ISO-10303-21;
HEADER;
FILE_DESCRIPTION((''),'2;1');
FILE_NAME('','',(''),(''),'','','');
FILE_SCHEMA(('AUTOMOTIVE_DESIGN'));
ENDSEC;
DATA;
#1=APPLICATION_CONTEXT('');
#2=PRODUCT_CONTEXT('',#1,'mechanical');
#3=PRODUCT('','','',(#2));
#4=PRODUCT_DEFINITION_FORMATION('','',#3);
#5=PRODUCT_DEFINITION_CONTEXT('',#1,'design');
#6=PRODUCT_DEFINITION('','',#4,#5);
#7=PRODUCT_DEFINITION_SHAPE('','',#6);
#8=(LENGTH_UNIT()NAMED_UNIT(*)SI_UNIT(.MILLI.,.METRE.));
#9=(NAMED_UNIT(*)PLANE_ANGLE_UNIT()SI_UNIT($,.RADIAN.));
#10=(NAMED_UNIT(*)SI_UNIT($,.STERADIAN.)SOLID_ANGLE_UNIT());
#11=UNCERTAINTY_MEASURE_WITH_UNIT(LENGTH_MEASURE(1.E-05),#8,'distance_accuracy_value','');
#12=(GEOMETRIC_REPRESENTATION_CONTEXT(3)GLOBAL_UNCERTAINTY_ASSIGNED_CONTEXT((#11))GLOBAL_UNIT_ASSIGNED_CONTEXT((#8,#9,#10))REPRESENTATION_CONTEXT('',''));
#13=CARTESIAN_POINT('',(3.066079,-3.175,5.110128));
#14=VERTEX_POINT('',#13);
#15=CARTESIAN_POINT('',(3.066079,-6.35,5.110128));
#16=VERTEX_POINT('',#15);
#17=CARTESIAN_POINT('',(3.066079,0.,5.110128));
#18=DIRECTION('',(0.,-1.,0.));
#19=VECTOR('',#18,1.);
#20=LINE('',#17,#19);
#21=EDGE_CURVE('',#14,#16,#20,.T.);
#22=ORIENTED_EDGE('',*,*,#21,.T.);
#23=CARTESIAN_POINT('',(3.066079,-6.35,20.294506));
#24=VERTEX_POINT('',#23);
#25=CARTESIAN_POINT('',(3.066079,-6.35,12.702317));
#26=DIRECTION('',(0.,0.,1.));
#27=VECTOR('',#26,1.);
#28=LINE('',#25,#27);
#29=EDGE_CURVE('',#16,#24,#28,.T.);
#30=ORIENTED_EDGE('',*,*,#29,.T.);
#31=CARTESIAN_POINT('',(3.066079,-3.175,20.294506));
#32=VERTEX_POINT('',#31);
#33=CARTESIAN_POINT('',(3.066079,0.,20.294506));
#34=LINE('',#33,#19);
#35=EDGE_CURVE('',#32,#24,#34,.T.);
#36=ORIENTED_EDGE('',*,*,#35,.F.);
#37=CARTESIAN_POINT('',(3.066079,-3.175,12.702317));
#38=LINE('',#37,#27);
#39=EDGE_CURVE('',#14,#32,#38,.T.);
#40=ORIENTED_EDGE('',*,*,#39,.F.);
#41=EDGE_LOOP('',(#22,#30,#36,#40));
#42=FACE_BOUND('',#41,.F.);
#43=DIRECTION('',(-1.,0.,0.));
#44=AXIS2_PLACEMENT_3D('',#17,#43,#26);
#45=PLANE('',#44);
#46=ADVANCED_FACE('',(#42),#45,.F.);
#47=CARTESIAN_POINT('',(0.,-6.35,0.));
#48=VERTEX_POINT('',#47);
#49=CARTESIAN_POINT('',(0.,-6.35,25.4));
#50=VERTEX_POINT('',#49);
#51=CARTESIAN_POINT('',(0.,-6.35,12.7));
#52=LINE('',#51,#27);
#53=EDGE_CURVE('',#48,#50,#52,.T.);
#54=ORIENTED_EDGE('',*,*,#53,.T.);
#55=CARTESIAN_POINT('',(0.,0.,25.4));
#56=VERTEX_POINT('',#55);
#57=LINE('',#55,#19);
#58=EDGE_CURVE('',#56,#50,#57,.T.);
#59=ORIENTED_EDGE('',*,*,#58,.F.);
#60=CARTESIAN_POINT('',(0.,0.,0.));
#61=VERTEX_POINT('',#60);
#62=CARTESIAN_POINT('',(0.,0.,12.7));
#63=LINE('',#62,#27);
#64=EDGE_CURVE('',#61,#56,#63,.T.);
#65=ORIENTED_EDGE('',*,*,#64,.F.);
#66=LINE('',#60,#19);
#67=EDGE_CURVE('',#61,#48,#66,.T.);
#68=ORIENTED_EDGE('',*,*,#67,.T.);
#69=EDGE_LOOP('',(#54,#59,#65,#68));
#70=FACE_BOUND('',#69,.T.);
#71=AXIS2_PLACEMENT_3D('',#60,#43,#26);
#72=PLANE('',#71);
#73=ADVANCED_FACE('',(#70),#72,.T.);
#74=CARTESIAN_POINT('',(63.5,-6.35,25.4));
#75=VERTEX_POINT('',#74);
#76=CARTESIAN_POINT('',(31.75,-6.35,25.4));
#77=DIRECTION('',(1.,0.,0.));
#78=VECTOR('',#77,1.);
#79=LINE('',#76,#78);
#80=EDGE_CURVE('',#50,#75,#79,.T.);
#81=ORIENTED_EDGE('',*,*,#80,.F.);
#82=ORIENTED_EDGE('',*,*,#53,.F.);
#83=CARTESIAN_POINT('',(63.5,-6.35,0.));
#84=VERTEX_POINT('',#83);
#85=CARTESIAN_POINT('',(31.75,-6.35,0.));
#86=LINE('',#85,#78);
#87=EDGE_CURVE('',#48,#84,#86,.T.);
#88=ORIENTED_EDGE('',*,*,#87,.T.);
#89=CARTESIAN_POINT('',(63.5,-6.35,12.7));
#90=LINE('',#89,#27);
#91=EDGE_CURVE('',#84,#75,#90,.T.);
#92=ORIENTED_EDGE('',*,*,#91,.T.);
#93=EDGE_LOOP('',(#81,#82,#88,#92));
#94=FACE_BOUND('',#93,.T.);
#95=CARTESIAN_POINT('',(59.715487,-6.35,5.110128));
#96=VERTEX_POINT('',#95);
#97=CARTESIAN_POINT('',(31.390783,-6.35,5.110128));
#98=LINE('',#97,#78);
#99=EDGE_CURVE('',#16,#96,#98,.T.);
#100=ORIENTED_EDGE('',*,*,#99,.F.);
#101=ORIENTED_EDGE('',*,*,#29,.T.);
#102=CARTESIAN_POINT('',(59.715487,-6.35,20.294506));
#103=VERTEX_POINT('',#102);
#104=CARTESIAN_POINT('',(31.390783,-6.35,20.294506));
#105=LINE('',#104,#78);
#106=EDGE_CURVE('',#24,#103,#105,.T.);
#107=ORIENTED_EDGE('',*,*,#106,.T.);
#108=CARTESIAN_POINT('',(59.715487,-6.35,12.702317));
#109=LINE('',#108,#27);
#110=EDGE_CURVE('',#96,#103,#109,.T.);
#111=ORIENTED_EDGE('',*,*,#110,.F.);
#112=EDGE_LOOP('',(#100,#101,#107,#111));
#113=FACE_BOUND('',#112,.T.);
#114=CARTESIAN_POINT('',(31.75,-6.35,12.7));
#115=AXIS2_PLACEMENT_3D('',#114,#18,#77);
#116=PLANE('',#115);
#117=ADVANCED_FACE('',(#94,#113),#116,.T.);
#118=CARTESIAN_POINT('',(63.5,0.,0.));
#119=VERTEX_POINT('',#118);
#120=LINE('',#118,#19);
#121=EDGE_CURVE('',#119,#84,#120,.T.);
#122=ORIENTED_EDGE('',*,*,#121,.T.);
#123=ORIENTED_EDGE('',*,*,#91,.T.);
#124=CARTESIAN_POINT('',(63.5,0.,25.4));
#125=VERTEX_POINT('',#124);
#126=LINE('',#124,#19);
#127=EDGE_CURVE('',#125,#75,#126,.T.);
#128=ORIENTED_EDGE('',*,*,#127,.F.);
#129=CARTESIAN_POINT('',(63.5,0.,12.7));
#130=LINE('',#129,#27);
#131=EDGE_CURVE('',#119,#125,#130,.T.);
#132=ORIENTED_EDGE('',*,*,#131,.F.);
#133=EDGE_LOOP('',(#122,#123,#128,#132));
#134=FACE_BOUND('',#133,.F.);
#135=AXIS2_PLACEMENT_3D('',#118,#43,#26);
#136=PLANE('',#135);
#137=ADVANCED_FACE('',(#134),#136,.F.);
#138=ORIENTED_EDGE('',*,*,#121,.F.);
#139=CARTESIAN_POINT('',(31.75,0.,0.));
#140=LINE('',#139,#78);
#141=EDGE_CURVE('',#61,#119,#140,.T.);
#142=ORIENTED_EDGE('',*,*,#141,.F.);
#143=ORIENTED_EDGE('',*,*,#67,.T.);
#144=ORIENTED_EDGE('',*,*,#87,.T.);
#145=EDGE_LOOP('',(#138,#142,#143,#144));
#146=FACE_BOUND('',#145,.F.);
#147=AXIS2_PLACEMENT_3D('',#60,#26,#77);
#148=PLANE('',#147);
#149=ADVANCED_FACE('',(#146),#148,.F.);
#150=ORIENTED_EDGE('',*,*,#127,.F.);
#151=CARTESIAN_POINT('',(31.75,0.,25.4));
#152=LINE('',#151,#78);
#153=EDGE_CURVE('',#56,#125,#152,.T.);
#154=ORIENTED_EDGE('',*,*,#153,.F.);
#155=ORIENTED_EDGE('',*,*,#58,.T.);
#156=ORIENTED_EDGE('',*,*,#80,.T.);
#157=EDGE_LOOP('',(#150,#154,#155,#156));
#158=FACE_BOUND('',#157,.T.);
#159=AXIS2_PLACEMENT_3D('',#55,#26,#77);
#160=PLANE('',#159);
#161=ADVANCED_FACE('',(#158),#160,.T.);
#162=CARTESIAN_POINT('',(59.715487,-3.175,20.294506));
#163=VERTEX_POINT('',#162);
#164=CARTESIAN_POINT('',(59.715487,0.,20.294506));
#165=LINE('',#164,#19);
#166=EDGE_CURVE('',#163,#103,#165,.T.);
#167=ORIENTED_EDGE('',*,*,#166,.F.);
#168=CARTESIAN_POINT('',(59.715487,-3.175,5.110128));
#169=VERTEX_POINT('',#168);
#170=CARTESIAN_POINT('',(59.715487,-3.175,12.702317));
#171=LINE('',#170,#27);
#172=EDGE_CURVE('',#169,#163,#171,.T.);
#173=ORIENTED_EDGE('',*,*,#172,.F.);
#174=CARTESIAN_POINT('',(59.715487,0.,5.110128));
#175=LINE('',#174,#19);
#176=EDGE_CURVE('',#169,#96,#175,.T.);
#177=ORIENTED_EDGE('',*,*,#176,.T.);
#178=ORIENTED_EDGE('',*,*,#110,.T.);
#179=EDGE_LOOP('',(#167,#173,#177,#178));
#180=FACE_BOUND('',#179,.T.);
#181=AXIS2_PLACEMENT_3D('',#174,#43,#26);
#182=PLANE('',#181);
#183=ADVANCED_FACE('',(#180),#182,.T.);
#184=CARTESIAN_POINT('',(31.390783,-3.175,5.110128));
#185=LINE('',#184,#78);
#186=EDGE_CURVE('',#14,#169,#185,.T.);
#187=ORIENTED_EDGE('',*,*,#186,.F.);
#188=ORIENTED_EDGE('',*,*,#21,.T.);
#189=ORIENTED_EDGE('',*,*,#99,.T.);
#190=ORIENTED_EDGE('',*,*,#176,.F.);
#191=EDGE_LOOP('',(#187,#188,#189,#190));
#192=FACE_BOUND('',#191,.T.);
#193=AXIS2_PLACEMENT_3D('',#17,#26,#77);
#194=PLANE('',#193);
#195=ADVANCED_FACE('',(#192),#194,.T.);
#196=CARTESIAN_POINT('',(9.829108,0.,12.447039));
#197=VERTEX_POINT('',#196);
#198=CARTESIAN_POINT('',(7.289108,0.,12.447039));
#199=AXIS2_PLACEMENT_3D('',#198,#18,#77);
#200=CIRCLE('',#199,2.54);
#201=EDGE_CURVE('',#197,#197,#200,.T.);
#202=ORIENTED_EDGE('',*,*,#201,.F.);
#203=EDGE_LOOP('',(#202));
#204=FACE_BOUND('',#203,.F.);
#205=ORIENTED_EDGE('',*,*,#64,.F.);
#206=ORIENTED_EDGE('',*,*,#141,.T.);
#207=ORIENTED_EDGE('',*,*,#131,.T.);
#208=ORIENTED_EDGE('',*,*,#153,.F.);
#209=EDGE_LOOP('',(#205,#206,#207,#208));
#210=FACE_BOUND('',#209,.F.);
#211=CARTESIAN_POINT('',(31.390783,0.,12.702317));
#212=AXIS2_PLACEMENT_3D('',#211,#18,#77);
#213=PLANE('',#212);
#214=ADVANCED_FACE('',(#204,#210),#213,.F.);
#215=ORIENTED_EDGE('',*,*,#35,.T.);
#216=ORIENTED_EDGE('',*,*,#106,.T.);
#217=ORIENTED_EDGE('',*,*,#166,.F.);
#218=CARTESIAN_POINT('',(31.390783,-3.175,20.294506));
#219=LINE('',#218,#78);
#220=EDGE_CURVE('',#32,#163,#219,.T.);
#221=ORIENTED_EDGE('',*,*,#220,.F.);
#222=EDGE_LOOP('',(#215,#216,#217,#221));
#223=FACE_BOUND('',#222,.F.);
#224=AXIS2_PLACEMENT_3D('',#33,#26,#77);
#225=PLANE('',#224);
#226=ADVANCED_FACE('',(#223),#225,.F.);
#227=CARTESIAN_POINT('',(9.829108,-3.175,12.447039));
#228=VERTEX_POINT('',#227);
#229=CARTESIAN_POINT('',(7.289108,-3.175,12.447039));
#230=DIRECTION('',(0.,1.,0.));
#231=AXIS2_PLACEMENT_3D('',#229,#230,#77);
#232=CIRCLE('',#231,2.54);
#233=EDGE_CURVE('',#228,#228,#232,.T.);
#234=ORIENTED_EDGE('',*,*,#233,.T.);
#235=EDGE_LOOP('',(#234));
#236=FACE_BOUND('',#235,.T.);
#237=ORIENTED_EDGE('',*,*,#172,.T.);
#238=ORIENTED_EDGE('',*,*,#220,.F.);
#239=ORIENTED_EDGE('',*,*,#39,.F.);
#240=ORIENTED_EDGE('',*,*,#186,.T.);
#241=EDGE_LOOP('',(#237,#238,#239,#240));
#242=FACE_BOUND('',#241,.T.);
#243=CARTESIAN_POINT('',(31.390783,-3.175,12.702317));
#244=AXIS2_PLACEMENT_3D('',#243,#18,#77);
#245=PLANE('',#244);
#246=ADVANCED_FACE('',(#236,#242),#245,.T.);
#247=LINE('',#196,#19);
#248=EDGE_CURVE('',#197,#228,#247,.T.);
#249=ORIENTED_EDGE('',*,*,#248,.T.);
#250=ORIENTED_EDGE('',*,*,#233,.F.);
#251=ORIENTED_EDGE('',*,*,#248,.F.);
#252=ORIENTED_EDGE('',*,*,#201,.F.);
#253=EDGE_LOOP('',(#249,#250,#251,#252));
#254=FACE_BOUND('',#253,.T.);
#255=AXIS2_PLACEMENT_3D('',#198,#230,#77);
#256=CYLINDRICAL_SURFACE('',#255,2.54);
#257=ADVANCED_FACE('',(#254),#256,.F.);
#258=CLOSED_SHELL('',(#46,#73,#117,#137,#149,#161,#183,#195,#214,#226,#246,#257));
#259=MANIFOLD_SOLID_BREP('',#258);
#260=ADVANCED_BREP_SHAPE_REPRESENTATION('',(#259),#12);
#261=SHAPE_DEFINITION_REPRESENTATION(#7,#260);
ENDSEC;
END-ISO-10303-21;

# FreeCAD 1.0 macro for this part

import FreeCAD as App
import Part
import Sketcher
Q = App.Units.Quantity


def add_polygon(sketch, points):
    """Adds a closed chain of lines whose ends are joined by coincident constraints."""
    first, n = sketch.GeometryCount, len(points)
    for a, b in zip(points, points[1:] + points[:1]):
        sketch.addGeometry(Part.LineSegment(App.Vector(*a, 0), App.Vector(*b, 0)), False)
    for i in range(n):
        sketch.addConstraint(Sketcher.Constraint("Coincident", first + i, 2, first + (i + 1) % n, 1))

doc = App.newDocument("Part")
params = doc.addObject("Spreadsheet::Sheet", "Params")
for row, (alias, value) in enumerate([
    ("sketch1_height", "1 in"),
    ("sketch1_width", "2.5 in"),
    ("pad1_length", "0.25 in"),
    ("pad2_length", "0.125 in"),
    ("sketch3_diameter", "0.2 in"),
    ("pocket1_length", "1 in"),
], start=1):
    params.set(f"A{row}", alias)
    params.set(f"B{row}", "=" + value)
    params.setAlias(f"B{row}", alias)

body = doc.addObject("PartDesign::Body", "Body")

sketch1 = body.newObject("Sketcher::SketchObject", "Sketch")
sketch1.AttachmentSupport = (doc.getObject("XZ_Plane"), [""])
sketch1.MapMode = "FlatFace"
add_polygon(sketch1, [(0, 25), (0, 0), (64, 0), (64, 25)])
add_polygon(sketch1, [(60, 5), (3, 5), (3, 20), (60, 20)])
sketch1.addConstraint([
    Sketcher.Constraint("Vertical", 0),
    Sketcher.Constraint("Horizontal", 1),
    Sketcher.Constraint("Vertical", 2),
    Sketcher.Constraint("Horizontal", 3),
    Sketcher.Constraint("Horizontal", 4),
    Sketcher.Constraint("Vertical", 5),
    Sketcher.Constraint("Horizontal", 6),
    Sketcher.Constraint("Vertical", 7),
    Sketcher.Constraint("Coincident", 0, 2, -1, 1),
    Sketcher.Constraint("DistanceY", 0, 2, 0, 1, Q("1 in")),
    Sketcher.Constraint("DistanceX", 1, 1, 1, 2, Q("2.5 in")),
    Sketcher.Constraint("DistanceX", 4, 2, 4, 1, 56.649408),
    Sketcher.Constraint("DistanceY", 5, 1, 5, 2, 15.184378),
    Sketcher.Constraint("DistanceX", -1, 1, 4, 2, 3.066079),
    Sketcher.Constraint("DistanceY", 4, 2, 3, 2, 20.289872),
])
sketch1.setExpression("Constraints[17]", "Params.sketch1_height")
sketch1.setExpression("Constraints[18]", "Params.sketch1_width")
pad1 = body.newObject("PartDesign::Pad", "Pad")
pad1.Profile = sketch1
pad1.setExpression("Length", "Params.pad1_length")

sketch2 = body.newObject("Sketcher::SketchObject", "Sketch001")
sketch2.AttachmentSupport = (doc.getObject("XZ_Plane"), [""])
sketch2.MapMode = "FlatFace"
add_polygon(sketch2, [(3, 20), (3, 5), (60, 5), (60, 20)])
sketch2.addConstraint([
    Sketcher.Constraint("Vertical", 0),
    Sketcher.Constraint("Horizontal", 1),
    Sketcher.Constraint("Vertical", 2),
    Sketcher.Constraint("Horizontal", 3),
    Sketcher.Constraint("DistanceX", 1, 1, 1, 2, 56.649408),
    Sketcher.Constraint("DistanceY", 0, 2, 0, 1, 15.184378),
    Sketcher.Constraint("DistanceX", -1, 1, 0, 2, 3.066079),
    Sketcher.Constraint("DistanceY", -1, 1, 0, 2, 5.110128),
])
pad2 = body.newObject("PartDesign::Pad", "Pad001")
pad2.Profile = sketch2
pad2.setExpression("Length", "Params.pad2_length")

sketch3 = body.newObject("Sketcher::SketchObject", "Sketch002")
sketch3.AttachmentSupport = (doc.getObject("XZ_Plane"), [""])
sketch3.MapMode = "FlatFace"
sketch3.addGeometry(Part.Circle(App.Vector(7.3, 12.4, 0), App.Vector(0, 0, 1), 2.5), False)
sketch3.addConstraint([
    Sketcher.Constraint("Diameter", 0, Q("0.2 in")),
    Sketcher.Constraint("DistanceY", -1, 1, 0, 3, 12.447039),
    Sketcher.Constraint("DistanceX", -1, 1, 0, 3, 7.289108),
])
sketch3.setExpression("Constraints[0]", "Params.sketch3_diameter")
pocket1 = body.newObject("PartDesign::Pocket", "Pocket")
pocket1.Profile = sketch3
pocket1.setExpression("Length", "Params.pocket1_length")
pocket1.Reversed = True

doc.recompute()
